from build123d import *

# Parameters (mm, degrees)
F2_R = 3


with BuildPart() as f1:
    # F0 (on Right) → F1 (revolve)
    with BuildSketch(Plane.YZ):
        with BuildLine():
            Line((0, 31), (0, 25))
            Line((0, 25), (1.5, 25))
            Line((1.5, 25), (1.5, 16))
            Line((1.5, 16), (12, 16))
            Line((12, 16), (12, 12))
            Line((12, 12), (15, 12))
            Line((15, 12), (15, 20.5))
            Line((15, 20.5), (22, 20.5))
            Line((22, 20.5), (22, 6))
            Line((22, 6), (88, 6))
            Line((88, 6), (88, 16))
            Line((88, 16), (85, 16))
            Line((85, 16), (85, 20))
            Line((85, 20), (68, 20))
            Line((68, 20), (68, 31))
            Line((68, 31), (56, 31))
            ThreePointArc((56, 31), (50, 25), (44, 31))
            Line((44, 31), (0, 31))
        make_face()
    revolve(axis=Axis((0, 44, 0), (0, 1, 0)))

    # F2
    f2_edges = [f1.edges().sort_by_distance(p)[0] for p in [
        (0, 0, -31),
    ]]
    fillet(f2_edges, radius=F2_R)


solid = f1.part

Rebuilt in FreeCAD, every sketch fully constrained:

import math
import FreeCAD as App
import Part
import Sketcher

V = App.Vector


def edges_at(feature, points):
    """Names of the edges that pass closest to the given points."""
    edges = feature.Shape.Edges
    near = lambda p: min(range(len(edges)), key=lambda i: edges[i].distToShape(Part.Vertex(*p))[0])
    return sorted({f"Edge{near(p) + 1}" for p in points})

doc = App.newDocument("Part")
body = doc.addObject("PartDesign::Body", "Body")

sketch1 = doc.addObject("Sketcher::SketchObject", "Sketch")
body.addObject(sketch1)
sketch1.AttachmentSupport = (doc.YZ_Plane, [""])
sketch1.MapMode = "FlatFace"
sketch1.addGeometry(Part.LineSegment(V(0, 31, 0), V(0, 25, 0)), False)
sketch1.addGeometry(Part.LineSegment(V(0, 25, 0), V(1.5, 25, 0)), False)
sketch1.addGeometry(Part.LineSegment(V(1.5, 25, 0), V(1.5, 16, 0)), False)
sketch1.addGeometry(Part.LineSegment(V(1.5, 16, 0), V(12, 16, 0)), False)
sketch1.addGeometry(Part.LineSegment(V(12, 16, 0), V(12, 12, 0)), False)
sketch1.addGeometry(Part.LineSegment(V(12, 12, 0), V(15, 12, 0)), False)
sketch1.addGeometry(Part.LineSegment(V(15, 12, 0), V(15, 20.5, 0)), False)
sketch1.addGeometry(Part.LineSegment(V(15, 20.5, 0), V(22, 20.5, 0)), False)
sketch1.addGeometry(Part.LineSegment(V(22, 20.5, 0), V(22, 6, 0)), False)
sketch1.addGeometry(Part.LineSegment(V(22, 6, 0), V(88, 6, 0)), False)
sketch1.addGeometry(Part.LineSegment(V(88, 6, 0), V(88, 16, 0)), False)
sketch1.addGeometry(Part.LineSegment(V(88, 16, 0), V(85, 16, 0)), False)
sketch1.addGeometry(Part.LineSegment(V(85, 16, 0), V(85, 20, 0)), False)
sketch1.addGeometry(Part.LineSegment(V(85, 20, 0), V(68, 20, 0)), False)
sketch1.addGeometry(Part.LineSegment(V(68, 20, 0), V(68, 31, 0)), False)
sketch1.addGeometry(Part.LineSegment(V(68, 31, 0), V(56, 31, 0)), False)
sketch1.addGeometry(Part.ArcOfCircle(Part.Circle(V(50, 31, 0), V(0, 0, 1), 6), math.radians(180), math.radians(360)), False)
sketch1.addGeometry(Part.LineSegment(V(44, 31, 0), V(0, 31, 0)), False)
sketch1.addConstraint(Sketcher.Constraint("Coincident", 0, 2, 1, 1))
sketch1.addConstraint(Sketcher.Constraint("Coincident", 1, 2, 2, 1))
sketch1.addConstraint(Sketcher.Constraint("Coincident", 2, 2, 3, 1))
sketch1.addConstraint(Sketcher.Constraint("Coincident", 3, 2, 4, 1))
sketch1.addConstraint(Sketcher.Constraint("Coincident", 4, 2, 5, 1))
sketch1.addConstraint(Sketcher.Constraint("Coincident", 5, 2, 6, 1))
sketch1.addConstraint(Sketcher.Constraint("Coincident", 6, 2, 7, 1))
sketch1.addConstraint(Sketcher.Constraint("Coincident", 7, 2, 8, 1))
sketch1.addConstraint(Sketcher.Constraint("Coincident", 8, 2, 9, 1))
sketch1.addConstraint(Sketcher.Constraint("Coincident", 9, 2, 10, 1))
sketch1.addConstraint(Sketcher.Constraint("Coincident", 10, 2, 11, 1))
sketch1.addConstraint(Sketcher.Constraint("Coincident", 11, 2, 12, 1))
sketch1.addConstraint(Sketcher.Constraint("Coincident", 12, 2, 13, 1))
sketch1.addConstraint(Sketcher.Constraint("Coincident", 13, 2, 14, 1))
sketch1.addConstraint(Sketcher.Constraint("Coincident", 14, 2, 15, 1))
sketch1.addConstraint(Sketcher.Constraint("Coincident", 15, 2, 16, 2))
sketch1.addConstraint(Sketcher.Constraint("Coincident", 16, 1, 17, 1))
sketch1.addConstraint(Sketcher.Constraint("Coincident", 17, 2, 0, 1))
sketch1.addConstraint(Sketcher.Constraint("Vertical", 0))
sketch1.addConstraint(Sketcher.Constraint("Horizontal", 1))
sketch1.addConstraint(Sketcher.Constraint("Vertical", 2))
sketch1.addConstraint(Sketcher.Constraint("Horizontal", 3))
sketch1.addConstraint(Sketcher.Constraint("Vertical", 4))
sketch1.addConstraint(Sketcher.Constraint("Horizontal", 5))
sketch1.addConstraint(Sketcher.Constraint("Vertical", 6))
sketch1.addConstraint(Sketcher.Constraint("Horizontal", 7))
sketch1.addConstraint(Sketcher.Constraint("Vertical", 8))
sketch1.addConstraint(Sketcher.Constraint("Horizontal", 9))
sketch1.addConstraint(Sketcher.Constraint("Vertical", 10))
sketch1.addConstraint(Sketcher.Constraint("Horizontal", 11))
sketch1.addConstraint(Sketcher.Constraint("Vertical", 12))
sketch1.addConstraint(Sketcher.Constraint("Horizontal", 13))
sketch1.addConstraint(Sketcher.Constraint("Vertical", 14))
sketch1.addConstraint(Sketcher.Constraint("Horizontal", 15))
sketch1.addConstraint(Sketcher.Constraint("Horizontal", 17))
sketch1.addConstraint(Sketcher.Constraint("PointOnObject", 0, 2, -2))
sketch1.addConstraint(Sketcher.Constraint("Horizontal", 3, 2, 10, 2))
sketch1.addConstraint(Sketcher.Constraint("Horizontal", 16, 3, 14, 2))
sketch1.addConstraint(Sketcher.Constraint("Horizontal", 15, 2, 16, 1))
sketch1.addConstraint(Sketcher.Constraint("Equal", 5, 11))
sketch1.addConstraint(Sketcher.Constraint("Equal", 4, 12))
sketch1.addConstraint(Sketcher.Constraint("Radius", 16, 6.0))
sketch1.addConstraint(Sketcher.Constraint("DistanceX", 5, 1, 5, 2, 3.0))
sketch1.addConstraint(Sketcher.Constraint("DistanceX", 7, 1, 7, 2, 7.0))
sketch1.addConstraint(Sketcher.Constraint("DistanceX", 9, 1, 9, 2, 66.0))
sketch1.addConstraint(Sketcher.Constraint("DistanceX", 13, 2, 13, 1, 17.0))
sketch1.addConstraint(Sketcher.Constraint("DistanceX", 15, 2, 15, 1, 12.0))
sketch1.addConstraint(Sketcher.Constraint("DistanceX", 17, 2, 17, 1, 44.0))
sketch1.addConstraint(Sketcher.Constraint("DistanceY", 0, 2, 0, 1, 6.0))
sketch1.addConstraint(Sketcher.Constraint("DistanceY", 2, 2, 2, 1, 9.0))
sketch1.addConstraint(Sketcher.Constraint("DistanceY", 4, 2, 4, 1, 4.0))
sketch1.addConstraint(Sketcher.Constraint("DistanceY", 10, 1, 10, 2, 10.0))
sketch1.addConstraint(Sketcher.Constraint("DistanceX", 1, 1, 1, 2, 1.5))
sketch1.addConstraint(Sketcher.Constraint("DistanceY", 6, 1, 6, 2, 8.5))
sketch1.addConstraint(Sketcher.Constraint("DistanceY", -1, 1, 16, 3, 31.0))
revolution = doc.addObject("PartDesign::Revolution", "Revolution")
body.addObject(revolution)
revolution.Profile = sketch1
revolution.ReferenceAxis = (sketch1, ["H_Axis"])
revolution.Angle = 360
doc.recompute()

fillet = doc.addObject("PartDesign::Fillet", "Fillet")
body.addObject(fillet)
fillet.Base = (revolution, edges_at(revolution, [(0, 0, -31)]))
fillet.Radius = 3

doc.recompute()
